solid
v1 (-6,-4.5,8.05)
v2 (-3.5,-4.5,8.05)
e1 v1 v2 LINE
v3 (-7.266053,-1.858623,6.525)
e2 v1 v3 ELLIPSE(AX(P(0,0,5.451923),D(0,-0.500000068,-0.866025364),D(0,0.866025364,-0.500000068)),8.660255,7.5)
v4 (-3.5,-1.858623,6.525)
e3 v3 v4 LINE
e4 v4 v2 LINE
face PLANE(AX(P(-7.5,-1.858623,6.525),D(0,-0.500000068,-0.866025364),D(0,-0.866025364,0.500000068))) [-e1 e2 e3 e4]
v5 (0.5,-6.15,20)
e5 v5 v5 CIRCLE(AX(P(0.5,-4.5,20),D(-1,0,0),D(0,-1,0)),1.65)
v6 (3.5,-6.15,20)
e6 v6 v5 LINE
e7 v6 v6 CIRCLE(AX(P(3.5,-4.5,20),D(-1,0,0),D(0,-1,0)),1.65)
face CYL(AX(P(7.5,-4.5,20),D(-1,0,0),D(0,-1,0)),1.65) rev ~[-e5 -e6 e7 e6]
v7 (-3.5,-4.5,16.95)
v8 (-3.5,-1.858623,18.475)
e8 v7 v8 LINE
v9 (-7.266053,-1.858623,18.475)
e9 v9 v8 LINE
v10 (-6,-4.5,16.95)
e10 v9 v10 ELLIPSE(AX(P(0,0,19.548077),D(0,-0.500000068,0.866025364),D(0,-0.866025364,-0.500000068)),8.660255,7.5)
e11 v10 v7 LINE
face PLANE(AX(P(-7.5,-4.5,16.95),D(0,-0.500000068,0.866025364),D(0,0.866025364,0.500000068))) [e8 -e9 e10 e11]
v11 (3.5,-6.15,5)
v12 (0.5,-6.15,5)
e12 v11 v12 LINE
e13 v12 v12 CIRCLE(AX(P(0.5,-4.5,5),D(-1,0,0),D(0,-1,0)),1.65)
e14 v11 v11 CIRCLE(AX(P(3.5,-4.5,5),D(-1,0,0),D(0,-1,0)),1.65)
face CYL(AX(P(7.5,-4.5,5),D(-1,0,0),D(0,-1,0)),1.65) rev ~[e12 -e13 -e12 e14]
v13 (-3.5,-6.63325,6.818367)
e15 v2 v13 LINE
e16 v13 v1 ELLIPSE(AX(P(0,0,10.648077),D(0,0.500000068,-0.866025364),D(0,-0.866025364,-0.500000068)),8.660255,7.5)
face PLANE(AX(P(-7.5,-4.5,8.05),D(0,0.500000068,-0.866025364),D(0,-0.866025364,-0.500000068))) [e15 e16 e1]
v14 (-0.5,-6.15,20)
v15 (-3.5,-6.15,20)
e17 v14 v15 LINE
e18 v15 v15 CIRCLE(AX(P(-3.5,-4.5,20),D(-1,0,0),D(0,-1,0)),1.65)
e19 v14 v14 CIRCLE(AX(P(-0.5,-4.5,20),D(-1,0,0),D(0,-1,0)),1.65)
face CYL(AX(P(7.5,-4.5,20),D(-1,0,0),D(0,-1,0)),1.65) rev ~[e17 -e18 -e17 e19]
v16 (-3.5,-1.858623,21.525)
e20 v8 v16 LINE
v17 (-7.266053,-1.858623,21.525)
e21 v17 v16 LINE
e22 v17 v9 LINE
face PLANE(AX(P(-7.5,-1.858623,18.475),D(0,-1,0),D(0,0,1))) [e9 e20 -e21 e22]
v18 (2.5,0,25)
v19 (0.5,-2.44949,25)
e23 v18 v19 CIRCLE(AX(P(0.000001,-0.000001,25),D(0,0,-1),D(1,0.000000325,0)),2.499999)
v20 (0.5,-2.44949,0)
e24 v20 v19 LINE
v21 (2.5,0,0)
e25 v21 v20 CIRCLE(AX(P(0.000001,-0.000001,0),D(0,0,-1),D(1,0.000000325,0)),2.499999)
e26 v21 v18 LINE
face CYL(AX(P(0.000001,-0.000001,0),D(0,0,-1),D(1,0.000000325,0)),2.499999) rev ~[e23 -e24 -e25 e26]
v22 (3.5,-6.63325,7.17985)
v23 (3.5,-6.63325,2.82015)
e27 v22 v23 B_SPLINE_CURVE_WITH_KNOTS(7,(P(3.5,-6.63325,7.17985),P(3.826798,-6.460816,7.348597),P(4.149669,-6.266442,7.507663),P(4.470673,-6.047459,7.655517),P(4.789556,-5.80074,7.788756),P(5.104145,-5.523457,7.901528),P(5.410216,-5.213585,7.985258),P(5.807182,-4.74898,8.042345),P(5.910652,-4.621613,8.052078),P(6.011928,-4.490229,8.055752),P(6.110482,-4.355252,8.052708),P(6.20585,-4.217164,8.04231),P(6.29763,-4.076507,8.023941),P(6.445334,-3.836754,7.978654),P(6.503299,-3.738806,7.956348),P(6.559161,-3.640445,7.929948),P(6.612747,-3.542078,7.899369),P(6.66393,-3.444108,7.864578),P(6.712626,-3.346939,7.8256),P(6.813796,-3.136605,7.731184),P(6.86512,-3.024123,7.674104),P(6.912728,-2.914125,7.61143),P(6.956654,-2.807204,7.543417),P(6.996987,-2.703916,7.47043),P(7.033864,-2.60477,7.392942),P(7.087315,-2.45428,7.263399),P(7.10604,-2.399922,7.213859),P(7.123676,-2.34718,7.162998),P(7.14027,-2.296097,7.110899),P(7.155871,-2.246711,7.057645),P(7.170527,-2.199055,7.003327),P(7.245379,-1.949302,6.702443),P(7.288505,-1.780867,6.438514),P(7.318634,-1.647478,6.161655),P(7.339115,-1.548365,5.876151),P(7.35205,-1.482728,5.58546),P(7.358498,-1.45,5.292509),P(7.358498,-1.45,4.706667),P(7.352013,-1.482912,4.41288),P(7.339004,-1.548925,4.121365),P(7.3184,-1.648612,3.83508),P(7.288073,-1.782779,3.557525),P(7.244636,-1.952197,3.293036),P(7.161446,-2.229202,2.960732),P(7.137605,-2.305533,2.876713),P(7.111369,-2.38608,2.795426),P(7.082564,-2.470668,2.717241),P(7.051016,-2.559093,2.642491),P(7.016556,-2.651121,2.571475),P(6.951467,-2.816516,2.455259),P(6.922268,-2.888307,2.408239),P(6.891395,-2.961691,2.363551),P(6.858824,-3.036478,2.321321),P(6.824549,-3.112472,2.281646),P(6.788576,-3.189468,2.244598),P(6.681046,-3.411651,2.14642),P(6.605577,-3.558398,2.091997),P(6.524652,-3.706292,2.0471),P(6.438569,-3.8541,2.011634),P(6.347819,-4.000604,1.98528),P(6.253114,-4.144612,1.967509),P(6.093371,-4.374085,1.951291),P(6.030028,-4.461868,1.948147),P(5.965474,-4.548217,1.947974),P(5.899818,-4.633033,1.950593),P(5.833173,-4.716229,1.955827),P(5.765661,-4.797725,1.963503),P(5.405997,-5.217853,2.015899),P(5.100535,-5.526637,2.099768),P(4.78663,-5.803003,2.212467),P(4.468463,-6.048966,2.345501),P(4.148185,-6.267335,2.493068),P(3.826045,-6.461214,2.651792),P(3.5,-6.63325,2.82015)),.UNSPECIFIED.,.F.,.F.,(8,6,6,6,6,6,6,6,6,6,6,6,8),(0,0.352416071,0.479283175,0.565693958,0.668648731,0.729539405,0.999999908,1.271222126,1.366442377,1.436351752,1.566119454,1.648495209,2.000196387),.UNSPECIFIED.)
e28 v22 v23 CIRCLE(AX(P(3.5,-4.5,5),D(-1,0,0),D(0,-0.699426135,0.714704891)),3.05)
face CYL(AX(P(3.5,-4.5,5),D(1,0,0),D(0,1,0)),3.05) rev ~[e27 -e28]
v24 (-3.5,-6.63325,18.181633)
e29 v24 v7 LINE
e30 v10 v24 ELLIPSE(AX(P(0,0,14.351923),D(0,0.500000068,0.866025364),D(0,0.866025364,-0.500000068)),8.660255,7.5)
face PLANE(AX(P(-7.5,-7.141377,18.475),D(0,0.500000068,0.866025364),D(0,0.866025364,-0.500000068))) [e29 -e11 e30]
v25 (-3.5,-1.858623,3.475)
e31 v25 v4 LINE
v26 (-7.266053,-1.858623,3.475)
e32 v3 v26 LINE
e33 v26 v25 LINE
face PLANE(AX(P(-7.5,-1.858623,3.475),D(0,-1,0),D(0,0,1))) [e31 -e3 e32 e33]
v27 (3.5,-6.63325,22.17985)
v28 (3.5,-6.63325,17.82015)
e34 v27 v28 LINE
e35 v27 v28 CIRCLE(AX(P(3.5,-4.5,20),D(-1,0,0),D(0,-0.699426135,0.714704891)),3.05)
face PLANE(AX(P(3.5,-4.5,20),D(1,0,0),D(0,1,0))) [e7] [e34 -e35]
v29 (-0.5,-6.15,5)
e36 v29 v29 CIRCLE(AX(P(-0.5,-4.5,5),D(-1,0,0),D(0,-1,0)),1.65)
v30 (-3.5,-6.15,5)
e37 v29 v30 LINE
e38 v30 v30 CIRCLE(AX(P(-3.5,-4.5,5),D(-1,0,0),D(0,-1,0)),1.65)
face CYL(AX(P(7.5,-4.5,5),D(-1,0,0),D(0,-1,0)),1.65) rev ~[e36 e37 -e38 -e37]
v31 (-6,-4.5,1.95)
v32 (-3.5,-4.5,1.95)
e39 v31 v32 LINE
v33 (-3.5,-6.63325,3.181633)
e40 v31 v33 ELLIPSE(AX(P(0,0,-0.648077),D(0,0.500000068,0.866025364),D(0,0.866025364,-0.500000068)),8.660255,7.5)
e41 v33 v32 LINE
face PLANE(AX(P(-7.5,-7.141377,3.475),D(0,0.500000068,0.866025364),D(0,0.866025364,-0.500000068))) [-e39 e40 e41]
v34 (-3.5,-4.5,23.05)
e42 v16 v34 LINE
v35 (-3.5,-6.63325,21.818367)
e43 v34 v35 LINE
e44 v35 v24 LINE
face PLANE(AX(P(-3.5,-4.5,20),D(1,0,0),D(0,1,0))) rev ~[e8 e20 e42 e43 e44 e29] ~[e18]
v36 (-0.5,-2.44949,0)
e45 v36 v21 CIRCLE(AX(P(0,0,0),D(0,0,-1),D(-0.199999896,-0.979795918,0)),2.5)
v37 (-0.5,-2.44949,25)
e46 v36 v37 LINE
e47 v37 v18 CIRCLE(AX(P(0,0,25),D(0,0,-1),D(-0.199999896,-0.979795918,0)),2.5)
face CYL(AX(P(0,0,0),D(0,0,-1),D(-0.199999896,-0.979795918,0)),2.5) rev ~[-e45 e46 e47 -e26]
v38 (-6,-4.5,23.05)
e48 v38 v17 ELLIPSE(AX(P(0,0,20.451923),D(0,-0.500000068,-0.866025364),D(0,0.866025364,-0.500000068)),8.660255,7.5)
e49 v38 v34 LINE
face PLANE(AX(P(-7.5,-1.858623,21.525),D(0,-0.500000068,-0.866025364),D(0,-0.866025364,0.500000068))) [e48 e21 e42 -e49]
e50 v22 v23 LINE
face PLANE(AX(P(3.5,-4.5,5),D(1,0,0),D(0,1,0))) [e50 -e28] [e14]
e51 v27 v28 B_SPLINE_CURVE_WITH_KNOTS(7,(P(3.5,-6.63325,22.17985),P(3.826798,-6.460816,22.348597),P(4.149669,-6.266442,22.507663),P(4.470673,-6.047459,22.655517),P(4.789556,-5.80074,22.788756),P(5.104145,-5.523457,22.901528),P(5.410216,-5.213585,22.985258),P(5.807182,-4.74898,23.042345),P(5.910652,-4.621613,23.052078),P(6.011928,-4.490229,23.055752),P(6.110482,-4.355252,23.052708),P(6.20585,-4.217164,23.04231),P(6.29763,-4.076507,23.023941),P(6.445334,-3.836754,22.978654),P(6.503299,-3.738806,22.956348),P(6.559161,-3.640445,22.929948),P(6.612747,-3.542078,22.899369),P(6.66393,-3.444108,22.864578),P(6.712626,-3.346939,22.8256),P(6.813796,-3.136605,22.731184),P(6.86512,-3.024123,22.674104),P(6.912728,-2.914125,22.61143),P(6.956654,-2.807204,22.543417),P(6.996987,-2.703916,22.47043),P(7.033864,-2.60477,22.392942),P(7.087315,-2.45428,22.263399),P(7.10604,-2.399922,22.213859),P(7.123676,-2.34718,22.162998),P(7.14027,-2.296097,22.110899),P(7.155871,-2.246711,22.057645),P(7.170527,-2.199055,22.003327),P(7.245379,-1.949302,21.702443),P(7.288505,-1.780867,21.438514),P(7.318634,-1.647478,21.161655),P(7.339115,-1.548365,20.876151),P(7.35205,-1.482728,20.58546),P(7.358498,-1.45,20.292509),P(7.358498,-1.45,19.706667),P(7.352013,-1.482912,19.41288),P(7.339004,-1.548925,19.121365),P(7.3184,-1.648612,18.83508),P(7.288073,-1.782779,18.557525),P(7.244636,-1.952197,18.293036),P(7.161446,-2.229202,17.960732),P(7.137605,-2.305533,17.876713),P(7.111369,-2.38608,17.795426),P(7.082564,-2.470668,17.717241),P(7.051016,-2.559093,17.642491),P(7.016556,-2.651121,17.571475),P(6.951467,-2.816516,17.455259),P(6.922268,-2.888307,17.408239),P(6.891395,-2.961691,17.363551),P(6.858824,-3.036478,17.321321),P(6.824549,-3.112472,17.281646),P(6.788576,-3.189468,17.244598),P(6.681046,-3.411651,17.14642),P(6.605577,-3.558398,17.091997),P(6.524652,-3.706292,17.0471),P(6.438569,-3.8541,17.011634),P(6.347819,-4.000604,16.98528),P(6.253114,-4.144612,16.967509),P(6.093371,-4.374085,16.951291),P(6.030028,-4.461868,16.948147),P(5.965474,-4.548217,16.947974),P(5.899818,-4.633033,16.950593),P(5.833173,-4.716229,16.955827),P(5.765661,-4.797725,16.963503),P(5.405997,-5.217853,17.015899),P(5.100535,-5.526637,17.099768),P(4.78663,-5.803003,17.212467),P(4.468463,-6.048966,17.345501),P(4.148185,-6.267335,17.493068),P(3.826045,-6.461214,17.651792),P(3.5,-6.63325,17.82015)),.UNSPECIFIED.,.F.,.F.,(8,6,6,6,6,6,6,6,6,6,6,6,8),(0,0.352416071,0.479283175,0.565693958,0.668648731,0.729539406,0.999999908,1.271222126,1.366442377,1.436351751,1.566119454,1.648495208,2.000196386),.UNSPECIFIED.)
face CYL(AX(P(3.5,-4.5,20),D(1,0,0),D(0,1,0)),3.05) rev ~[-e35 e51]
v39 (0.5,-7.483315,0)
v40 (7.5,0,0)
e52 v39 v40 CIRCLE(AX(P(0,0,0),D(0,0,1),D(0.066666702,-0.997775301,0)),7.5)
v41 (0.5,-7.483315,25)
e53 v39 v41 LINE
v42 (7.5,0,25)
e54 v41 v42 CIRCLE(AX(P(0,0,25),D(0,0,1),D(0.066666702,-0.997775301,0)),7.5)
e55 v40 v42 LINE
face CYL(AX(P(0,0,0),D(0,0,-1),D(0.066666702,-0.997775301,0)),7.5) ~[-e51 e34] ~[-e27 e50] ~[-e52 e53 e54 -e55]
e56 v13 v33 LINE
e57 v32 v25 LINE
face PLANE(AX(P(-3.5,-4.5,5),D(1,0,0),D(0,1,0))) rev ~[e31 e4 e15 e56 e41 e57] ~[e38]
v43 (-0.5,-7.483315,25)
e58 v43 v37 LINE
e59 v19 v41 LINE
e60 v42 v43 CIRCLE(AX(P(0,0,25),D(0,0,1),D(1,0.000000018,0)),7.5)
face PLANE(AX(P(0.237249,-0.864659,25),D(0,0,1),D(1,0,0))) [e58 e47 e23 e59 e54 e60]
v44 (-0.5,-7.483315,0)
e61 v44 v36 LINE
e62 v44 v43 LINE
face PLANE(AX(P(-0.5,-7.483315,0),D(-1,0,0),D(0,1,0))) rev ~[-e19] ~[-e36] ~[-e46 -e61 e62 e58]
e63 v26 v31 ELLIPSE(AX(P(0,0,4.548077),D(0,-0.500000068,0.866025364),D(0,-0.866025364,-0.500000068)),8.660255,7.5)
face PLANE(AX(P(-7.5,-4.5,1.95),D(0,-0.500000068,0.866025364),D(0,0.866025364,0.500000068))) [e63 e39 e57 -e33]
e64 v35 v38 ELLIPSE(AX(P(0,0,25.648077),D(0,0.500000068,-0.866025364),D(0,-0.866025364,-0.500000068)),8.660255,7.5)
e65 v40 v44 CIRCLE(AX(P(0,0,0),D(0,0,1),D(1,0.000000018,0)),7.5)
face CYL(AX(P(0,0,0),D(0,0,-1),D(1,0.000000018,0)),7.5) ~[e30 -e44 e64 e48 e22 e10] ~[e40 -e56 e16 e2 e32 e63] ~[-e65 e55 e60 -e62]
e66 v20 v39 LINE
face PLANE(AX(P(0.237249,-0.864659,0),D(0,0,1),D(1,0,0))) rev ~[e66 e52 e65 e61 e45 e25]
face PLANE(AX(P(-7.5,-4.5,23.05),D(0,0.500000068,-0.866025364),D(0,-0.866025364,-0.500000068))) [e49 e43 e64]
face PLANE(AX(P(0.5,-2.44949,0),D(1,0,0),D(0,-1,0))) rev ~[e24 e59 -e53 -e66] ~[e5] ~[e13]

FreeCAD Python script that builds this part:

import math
import FreeCAD as App
import Part
import Sketcher
Q = App.Units.Quantity

doc = App.newDocument("Part")
body = doc.addObject("PartDesign::Body", "Body")

sketch1 = body.newObject("Sketcher::SketchObject", "Sketch")
sketch1.AttachmentSupport = (doc.getObject("XY_Plane"), [""])
sketch1.MapMode = "FlatFace"
sketch1.addGeometry(Part.ArcOfCircle(Part.Circle(App.Vector(0, 0, 0), App.Vector(0, 0, 1), 2.5), math.radians(0), math.radians(258)), False)
sketch1.addGeometry(Part.ArcOfCircle(Part.Circle(App.Vector(0, 0, 0), App.Vector(0, 0, 1), 2.5), math.radians(-78), math.radians(0)), False)
sketch1.addGeometry(Part.LineSegment(App.Vector(0.5, -2.4, 0), App.Vector(0.5, -7.5, 0)), False)
sketch1.addGeometry(Part.ArcOfCircle(Part.Circle(App.Vector(0, 0, 0), App.Vector(0, 0, 1), 7.5), math.radians(-86), math.radians(0)), False)
sketch1.addGeometry(Part.ArcOfCircle(Part.Circle(App.Vector(0, 0, 0), App.Vector(0, 0, 1), 7.5), math.radians(0), math.radians(266)), False)
sketch1.addGeometry(Part.LineSegment(App.Vector(-0.5, -7.5, 0), App.Vector(-0.5, -2.4, 0)), False)
sketch1.addConstraint(Sketcher.Constraint("Tangent", 0, 1, 1, 2))
sketch1.addConstraint(Sketcher.Constraint("Coincident", 1, 1, 2, 1))
sketch1.addConstraint(Sketcher.Constraint("Coincident", 2, 2, 3, 1))
sketch1.addConstraint(Sketcher.Constraint("Tangent", 3, 2, 4, 1))
sketch1.addConstraint(Sketcher.Constraint("Coincident", 4, 2, 5, 1))
sketch1.addConstraint(Sketcher.Constraint("Coincident", 5, 2, 0, 2))
sketch1.addConstraint(Sketcher.Constraint("Vertical", 2))
sketch1.addConstraint(Sketcher.Constraint("Vertical", 5))
sketch1.addConstraint(Sketcher.Constraint("Coincident", 0, 3, -1, 1))
sketch1.addConstraint(Sketcher.Constraint("Coincident", 3, 3, -1, 1))
sketch1.addConstraint(Sketcher.Constraint("Equal", 0, 1))
sketch1.addConstraint(Sketcher.Constraint("Equal", 3, 4))
sketch1.addConstraint(Sketcher.Constraint("PointOnObject", 0, 1, -1))
sketch1.addConstraint(Sketcher.Constraint("PointOnObject", 3, 2, -1))
sketch1.addConstraint(Sketcher.Constraint("Horizontal", 2, 2, 4, 2))
sketch1.addConstraint(Sketcher.Constraint("Radius", 0, 2.5))
sketch1.addConstraint(Sketcher.Constraint("Radius", 3, 7.5))
sketch1.addConstraint(Sketcher.Constraint("DistanceX", 1, 1, 0, 1, 2.0))
pad1 = body.newObject("PartDesign::Pad", "Pad")
pad1.Profile = sketch1
pad1.Length = 25

sketch2 = body.newObject("Sketcher::SketchObject", "Sketch001")
sketch2.AttachmentSupport = (doc.getObject("YZ_Plane"), [""])
sketch2.MapMode = "FlatFace"
sketch2.AttachmentOffset = App.Placement(App.Vector(0, 0, 7.5), App.Rotation())
sketch2.addGeometry(Part.Circle(App.Vector(-4.5, 20, 0), App.Vector(0, 0, 1), 1.6), False)
sketch2.addGeometry(Part.Circle(App.Vector(-4.5, 5, 0), App.Vector(0, 0, 1), 1.6), False)
sketch2.addConstraint(Sketcher.Constraint("Equal", 0, 1))
sketch2.addConstraint(Sketcher.Constraint("Vertical", 0, 3, 1, 3))
sketch2.addConstraint(Sketcher.Constraint("Diameter", 0, 3.3))
sketch2.addConstraint(Sketcher.Constraint("DistanceY", -1, 1, 0, 3, 20.0))
sketch2.addConstraint(Sketcher.Constraint("DistanceY", -1, 1, 1, 3, 5.0))
sketch2.addConstraint(Sketcher.Constraint("DistanceX", 0, 3, -1, 1, 4.5))
doc.recompute()
hole = body.newObject("PartDesign::Hole", "Hole")
hole.Profile = sketch2
hole.ThreadType = "None"
hole.Diameter = 3.3
hole.DepthType = "ThroughAll"
hole.HoleCutType = "Counterbore"
hole.HoleCutDiameter = 6.1
hole.HoleCutDepth = 4

sketch3 = body.newObject("Sketcher::SketchObject", "Sketch002")
sketch3.AttachmentSupport = (doc.getObject("YZ_Plane"), [""])
sketch3.MapMode = "FlatFace"
sketch3.AttachmentOffset = App.Placement(App.Vector(0, 0, 7.5), App.Rotation())
sketch3.addGeometry(Part.Circle(App.Vector(-4.5, 5, 0), App.Vector(0, 0, 1), 1.5), False)
sketch3.addConstraint(Sketcher.Constraint("Diameter", 0, 3.0))
sketch3.addConstraint(Sketcher.Constraint("DistanceY", -1, 1, 0, 3, 5.0))
sketch3.addConstraint(Sketcher.Constraint("DistanceX", 0, 3, -1, 1, 4.5))
pocket1 = body.newObject("PartDesign::Pocket", "Pocket")
pocket1.Profile = sketch3
pocket1.Length = 3

sketch4 = body.newObject("Sketcher::SketchObject", "Sketch003")
sketch4.AttachmentSupport = (doc.getObject("YZ_Plane"), [""])
sketch4.MapMode = "FlatFace"
sketch4.AttachmentOffset = App.Placement(App.Vector(0, 0, 7.5), App.Rotation())
sketch4.addGeometry(Part.Circle(App.Vector(-4.5, 20, 0), App.Vector(0, 0, 1), 1.5), False)
sketch4.addConstraint(Sketcher.Constraint("Diameter", 0, 3.0))
sketch4.addConstraint(Sketcher.Constraint("DistanceY", -1, 1, 0, 3, 20.0))
sketch4.addConstraint(Sketcher.Constraint("DistanceX", 0, 3, -1, 1, 4.5))
pocket2 = body.newObject("PartDesign::Pocket", "Pocket001")
pocket2.Profile = sketch4
pocket2.Length = 3

sketch5 = body.newObject("Sketcher::SketchObject", "Sketch004")
sketch5.AttachmentSupport = (doc.getObject("YZ_Plane"), [""])
sketch5.MapMode = "FlatFace"
sketch5.AttachmentOffset = App.Placement(App.Vector(0, 0, -7.5), App.Rotation())
sketch5.addGeometry(Part.LineSegment(App.Vector(-7.1, 3.5, 0), App.Vector(-4.5, 1.9, 0)), False)
sketch5.addGeometry(Part.LineSegment(App.Vector(-4.5, 1.9, 0), App.Vector(-1.9, 3.5, 0)), False)
sketch5.addGeometry(Part.LineSegment(App.Vector(-1.9, 3.5, 0), App.Vector(-1.9, 6.5, 0)), False)
sketch5.addGeometry(Part.LineSegment(App.Vector(-1.9, 6.5, 0), App.Vector(-4.5, 8.1, 0)), False)
sketch5.addGeometry(Part.LineSegment(App.Vector(-4.5, 8.1, 0), App.Vector(-7.1, 6.5, 0)), False)
sketch5.addGeometry(Part.LineSegment(App.Vector(-7.1, 6.5, 0), App.Vector(-7.1, 3.5, 0)), False)
sketch5.addGeometry(Part.LineSegment(App.Vector(-1.9, 18.5, 0), App.Vector(-1.9, 21.5, 0)), False)
sketch5.addGeometry(Part.LineSegment(App.Vector(-1.9, 21.5, 0), App.Vector(-4.5, 23.1, 0)), False)
sketch5.addGeometry(Part.LineSegment(App.Vector(-4.5, 23.1, 0), App.Vector(-7.1, 21.5, 0)), False)
sketch5.addGeometry(Part.LineSegment(App.Vector(-7.1, 21.5, 0), App.Vector(-7.1, 18.5, 0)), False)
sketch5.addGeometry(Part.LineSegment(App.Vector(-7.1, 18.5, 0), App.Vector(-4.5, 16.9, 0)), False)
sketch5.addGeometry(Part.LineSegment(App.Vector(-4.5, 16.9, 0), App.Vector(-1.9, 18.5, 0)), False)
sketch5.addConstraint(Sketcher.Constraint("Coincident", 0, 2, 1, 1))
sketch5.addConstraint(Sketcher.Constraint("Coincident", 1, 2, 2, 1))
sketch5.addConstraint(Sketcher.Constraint("Coincident", 2, 2, 3, 1))
sketch5.addConstraint(Sketcher.Constraint("Coincident", 3, 2, 4, 1))
sketch5.addConstraint(Sketcher.Constraint("Coincident", 4, 2, 5, 1))
sketch5.addConstraint(Sketcher.Constraint("Coincident", 5, 2, 0, 1))
sketch5.addConstraint(Sketcher.Constraint("Coincident", 6, 2, 7, 1))
sketch5.addConstraint(Sketcher.Constraint("Coincident", 7, 2, 8, 1))
sketch5.addConstraint(Sketcher.Constraint("Coincident", 8, 2, 9, 1))
sketch5.addConstraint(Sketcher.Constraint("Coincident", 9, 2, 10, 1))
sketch5.addConstraint(Sketcher.Constraint("Coincident", 10, 2, 11, 1))
sketch5.addConstraint(Sketcher.Constraint("Coincident", 11, 2, 6, 1))
sketch5.addConstraint(Sketcher.Constraint("Vertical", 2))
sketch5.addConstraint(Sketcher.Constraint("Vertical", 5))
sketch5.addConstraint(Sketcher.Constraint("Vertical", 6))
sketch5.addConstraint(Sketcher.Constraint("Vertical", 9))
sketch5.addConstraint(Sketcher.Constraint("Parallel", 0, 3))
sketch5.addConstraint(Sketcher.Constraint("Parallel", 1, 4))
sketch5.addConstraint(Sketcher.Constraint("Parallel", 3, 7))
sketch5.addConstraint(Sketcher.Constraint("Parallel", 4, 8))
sketch5.addConstraint(Sketcher.Constraint("Parallel", 7, 10))
sketch5.addConstraint(Sketcher.Constraint("Parallel", 8, 11))
sketch5.addConstraint(Sketcher.Constraint("Horizontal", 2, 2, 4, 2))
sketch5.addConstraint(Sketcher.Constraint("Horizontal", 1, 2, 5, 2))
sketch5.addConstraint(Sketcher.Constraint("Horizontal", 6, 2, 8, 2))
sketch5.addConstraint(Sketcher.Constraint("Horizontal", 9, 2, 11, 2))
sketch5.addConstraint(Sketcher.Constraint("Vertical", 0, 2, 3, 2))
sketch5.addConstraint(Sketcher.Constraint("Vertical", 2, 2, 6, 2))
sketch5.addConstraint(Sketcher.Constraint("Vertical", 3, 2, 7, 2))
sketch5.addConstraint(Sketcher.Constraint("Equal", 5, 6))
sketch5.addConstraint(Sketcher.Constraint("Angle", 0, Q("-30.000005 deg")))
sketch5.addConstraint(Sketcher.Constraint("DistanceY", 2, 2, 6, 2, 15.0))
sketch5.addConstraint(Sketcher.Constraint("DistanceY", 2, 1, 2, 2, 3.05))
sketch5.addConstraint(Sketcher.Constraint("DistanceX", 0, 2, -1, 1, 4.5))
sketch5.addConstraint(Sketcher.Constraint("DistanceY", 0, 2, 3, 2, 6.1))
sketch5.addConstraint(Sketcher.Constraint("DistanceY", -1, 1, 0, 2, 1.95))
pocket3 = body.newObject("PartDesign::Pocket", "Pocket002")
pocket3.Profile = sketch5
pocket3.Length = 4
pocket3.Reversed = True

doc.recompute()
